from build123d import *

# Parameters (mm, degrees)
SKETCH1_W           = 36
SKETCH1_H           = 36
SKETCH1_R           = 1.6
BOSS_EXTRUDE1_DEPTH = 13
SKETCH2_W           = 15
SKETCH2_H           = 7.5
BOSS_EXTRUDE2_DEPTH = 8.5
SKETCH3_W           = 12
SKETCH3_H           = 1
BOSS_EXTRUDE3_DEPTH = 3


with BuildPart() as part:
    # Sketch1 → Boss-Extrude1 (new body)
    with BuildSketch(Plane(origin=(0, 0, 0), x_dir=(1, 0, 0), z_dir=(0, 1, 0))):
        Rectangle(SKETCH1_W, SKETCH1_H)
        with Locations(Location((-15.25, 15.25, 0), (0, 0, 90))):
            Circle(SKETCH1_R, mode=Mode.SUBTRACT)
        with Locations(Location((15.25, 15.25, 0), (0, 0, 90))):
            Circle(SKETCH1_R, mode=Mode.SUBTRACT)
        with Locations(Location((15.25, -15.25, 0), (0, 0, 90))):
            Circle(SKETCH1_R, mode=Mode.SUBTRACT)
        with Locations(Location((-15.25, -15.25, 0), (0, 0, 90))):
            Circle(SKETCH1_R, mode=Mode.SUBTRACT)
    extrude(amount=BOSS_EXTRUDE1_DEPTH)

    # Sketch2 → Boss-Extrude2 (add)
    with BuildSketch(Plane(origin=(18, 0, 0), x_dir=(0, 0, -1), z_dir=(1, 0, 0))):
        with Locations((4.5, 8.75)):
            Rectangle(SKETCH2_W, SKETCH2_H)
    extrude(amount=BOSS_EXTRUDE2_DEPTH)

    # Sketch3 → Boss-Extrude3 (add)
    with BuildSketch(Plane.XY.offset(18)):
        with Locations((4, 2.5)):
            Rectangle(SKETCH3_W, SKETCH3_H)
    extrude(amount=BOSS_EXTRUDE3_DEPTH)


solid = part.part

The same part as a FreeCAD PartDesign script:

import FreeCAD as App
import Part
import Sketcher
from FreeCAD import Vector

doc = App.newDocument("Part")
params = doc.addObject("Spreadsheet::Sheet", "Params")
for row, (alias, value) in enumerate([
    ("sketch1_diameter", "3.2 mm"),
    ("sketch1_width", "36 mm"),
    ("pad1_length", "13 mm"),
    ("sketch2_height", "15 mm"),
    ("sketch2_width", "7.5 mm"),
    ("pad2_length", "8.5 mm"),
    ("sketch3_width", "12 mm"),
    ("sketch3_height", "1 mm"),
    ("pad3_length", "3 mm"),
], start=1):
    params.set(f"A{row}", alias)
    params.set(f"B{row}", "=" + value)
    params.setAlias(f"B{row}", alias)

body = doc.addObject("PartDesign::Body", "Body")

# Sketch on XZ plane
sketch1 = body.newObject("Sketcher::SketchObject", "Sketch")
sketch1.AttachmentSupport = (doc.getObject("XZ_Plane"), [""])
sketch1.MapMode = "FlatFace"
sketch1.addGeometry(Part.LineSegment(Vector(-18, -18, 0), Vector(-18, 18, 0)), False)
sketch1.addGeometry(Part.LineSegment(Vector(-18, 18, 0), Vector(18, 18, 0)), False)
sketch1.addGeometry(Part.LineSegment(Vector(18, 18, 0), Vector(18, -18, 0)), False)
sketch1.addGeometry(Part.LineSegment(Vector(18, -18, 0), Vector(-18, -18, 0)), False)
sketch1.addGeometry(Part.Circle(Vector(-15.2, 15.2, 0), Vector(0, 0, 1), 1.6), False)
sketch1.addGeometry(Part.Circle(Vector(15.2, 15.2, 0), Vector(0, 0, 1), 1.6), False)
sketch1.addGeometry(Part.Circle(Vector(-15.2, -15.2, 0), Vector(0, 0, 1), 1.6), False)
sketch1.addGeometry(Part.Circle(Vector(15.2, -15.2, 0), Vector(0, 0, 1), 1.6), False)
sketch1.addConstraint(Sketcher.Constraint("Coincident", 0, 2, 1, 1))
sketch1.addConstraint(Sketcher.Constraint("Coincident", 1, 2, 2, 1))
sketch1.addConstraint(Sketcher.Constraint("Coincident", 2, 2, 3, 1))
sketch1.addConstraint(Sketcher.Constraint("Coincident", 3, 2, 0, 1))
sketch1.addConstraint(Sketcher.Constraint("Vertical", 0))
sketch1.addConstraint(Sketcher.Constraint("Horizontal", 1))
sketch1.addConstraint(Sketcher.Constraint("Vertical", 2))
sketch1.addConstraint(Sketcher.Constraint("Horizontal", 3))
sketch1.addConstraint(Sketcher.Constraint("Equal", 4, 5))
sketch1.addConstraint(Sketcher.Constraint("Equal", 5, 6))
sketch1.addConstraint(Sketcher.Constraint("Equal", 6, 7))
sketch1.addConstraint(Sketcher.Constraint("Symmetric", 5, 3, 6, 3, -1, 1))
sketch1.addConstraint(Sketcher.Constraint("Symmetric", 4, 3, 7, 3, -1, 1))
sketch1.addConstraint(Sketcher.Constraint("Symmetric", 0, 2, 2, 2, -1, 1))
sketch1.addConstraint(Sketcher.Constraint("Symmetric", 4, 3, 5, 3, -2))
sketch1.addConstraint(Sketcher.Constraint("Equal", 3, 0))
sketch1.addConstraint(Sketcher.Constraint("Diameter", 4, 3.2))
sketch1.addConstraint(Sketcher.Constraint("DistanceX", 1, 1, 1, 2, 36.0))
sketch1.addConstraint(Sketcher.Constraint("DistanceX", 4, 3, 5, 3, 30.5))
sketch1.addConstraint(Sketcher.Constraint("DistanceY", 6, 3, 4, 3, 30.5))
sketch1.setExpression("Constraints[16]", "Params.sketch1_diameter")
sketch1.setExpression("Constraints[17]", "Params.sketch1_width")
pad1 = body.newObject("PartDesign::Pad", "Pad")
pad1.Profile = sketch1
pad1.setExpression("Length", "Params.pad1_length")
pad1.Reversed = True

# Sketch on YZ plane
sketch2 = body.newObject("Sketcher::SketchObject", "Sketch001")
sketch2.AttachmentSupport = (doc.getObject("YZ_Plane"), [""])
sketch2.MapMode = "FlatFace"
sketch2.AttachmentOffset = App.Placement(Vector(0, 0, 18), App.Rotation())
sketch2.addGeometry(Part.LineSegment(Vector(12, 3, 0), Vector(5, 3, 0)), False)
sketch2.addGeometry(Part.LineSegment(Vector(5, 3, 0), Vector(5, -12, 0)), False)
sketch2.addGeometry(Part.LineSegment(Vector(5, -12, 0), Vector(12, -12, 0)), False)
sketch2.addGeometry(Part.LineSegment(Vector(12, -12, 0), Vector(12, 3, 0)), False)
sketch2.addConstraint(Sketcher.Constraint("Coincident", 0, 2, 1, 1))
sketch2.addConstraint(Sketcher.Constraint("Coincident", 1, 2, 2, 1))
sketch2.addConstraint(Sketcher.Constraint("Coincident", 2, 2, 3, 1))
sketch2.addConstraint(Sketcher.Constraint("Coincident", 3, 2, 0, 1))
sketch2.addConstraint(Sketcher.Constraint("Horizontal", 0))
sketch2.addConstraint(Sketcher.Constraint("Vertical", 1))
sketch2.addConstraint(Sketcher.Constraint("Horizontal", 2))
sketch2.addConstraint(Sketcher.Constraint("Vertical", 3))
sketch2.addConstraint(Sketcher.Constraint("DistanceY", 1, 2, 1, 1, 15.0))
sketch2.addConstraint(Sketcher.Constraint("DistanceX", 0, 2, 0, 1, 7.5))
sketch2.addConstraint(Sketcher.Constraint("DistanceX", -1, 1, 0, 2, 5.0))
sketch2.addConstraint(Sketcher.Constraint("DistanceY", -1, 1, 0, 2, 3.0))
sketch2.setExpression("Constraints[8]", "Params.sketch2_height")
sketch2.setExpression("Constraints[9]", "Params.sketch2_width")
pad2 = body.newObject("PartDesign::Pad", "Pad001")
pad2.Profile = sketch2
pad2.setExpression("Length", "Params.pad2_length")

# Sketch on XY plane
sketch3 = body.newObject("Sketcher::SketchObject", "Sketch002")
sketch3.AttachmentSupport = (doc.getObject("XY_Plane"), [""])
sketch3.MapMode = "FlatFace"
sketch3.AttachmentOffset = App.Placement(Vector(0, 0, 18), App.Rotation())
sketch3.addGeometry(Part.LineSegment(Vector(-2, 3, 0), Vector(-2, 2, 0)), False)
sketch3.addGeometry(Part.LineSegment(Vector(-2, 2, 0), Vector(10, 2, 0)), False)
sketch3.addGeometry(Part.LineSegment(Vector(10, 2, 0), Vector(10, 3, 0)), False)
sketch3.addGeometry(Part.LineSegment(Vector(10, 3, 0), Vector(-2, 3, 0)), False)
sketch3.addConstraint(Sketcher.Constraint("Coincident", 0, 2, 1, 1))
sketch3.addConstraint(Sketcher.Constraint("Coincident", 1, 2, 2, 1))
sketch3.addConstraint(Sketcher.Constraint("Coincident", 2, 2, 3, 1))
sketch3.addConstraint(Sketcher.Constraint("Coincident", 3, 2, 0, 1))
sketch3.addConstraint(Sketcher.Constraint("Vertical", 0))
sketch3.addConstraint(Sketcher.Constraint("Horizontal", 1))
sketch3.addConstraint(Sketcher.Constraint("Vertical", 2))
sketch3.addConstraint(Sketcher.Constraint("Horizontal", 3))
sketch3.addConstraint(Sketcher.Constraint("DistanceX", 1, 1, 1, 2, 12.0))
sketch3.addConstraint(Sketcher.Constraint("DistanceY", 0, 2, 0, 1, 1.0))
sketch3.addConstraint(Sketcher.Constraint("DistanceX", 0, 2, -1, 1, 2.0))
sketch3.addConstraint(Sketcher.Constraint("DistanceY", -1, 1, 0, 2, 2.0))
sketch3.setExpression("Constraints[8]", "Params.sketch3_width")
sketch3.setExpression("Constraints[9]", "Params.sketch3_height")
pad3 = body.newObject("PartDesign::Pad", "Pad002")
pad3.Profile = sketch3
pad3.setExpression("Length", "Params.pad3_length")

doc.recompute()
